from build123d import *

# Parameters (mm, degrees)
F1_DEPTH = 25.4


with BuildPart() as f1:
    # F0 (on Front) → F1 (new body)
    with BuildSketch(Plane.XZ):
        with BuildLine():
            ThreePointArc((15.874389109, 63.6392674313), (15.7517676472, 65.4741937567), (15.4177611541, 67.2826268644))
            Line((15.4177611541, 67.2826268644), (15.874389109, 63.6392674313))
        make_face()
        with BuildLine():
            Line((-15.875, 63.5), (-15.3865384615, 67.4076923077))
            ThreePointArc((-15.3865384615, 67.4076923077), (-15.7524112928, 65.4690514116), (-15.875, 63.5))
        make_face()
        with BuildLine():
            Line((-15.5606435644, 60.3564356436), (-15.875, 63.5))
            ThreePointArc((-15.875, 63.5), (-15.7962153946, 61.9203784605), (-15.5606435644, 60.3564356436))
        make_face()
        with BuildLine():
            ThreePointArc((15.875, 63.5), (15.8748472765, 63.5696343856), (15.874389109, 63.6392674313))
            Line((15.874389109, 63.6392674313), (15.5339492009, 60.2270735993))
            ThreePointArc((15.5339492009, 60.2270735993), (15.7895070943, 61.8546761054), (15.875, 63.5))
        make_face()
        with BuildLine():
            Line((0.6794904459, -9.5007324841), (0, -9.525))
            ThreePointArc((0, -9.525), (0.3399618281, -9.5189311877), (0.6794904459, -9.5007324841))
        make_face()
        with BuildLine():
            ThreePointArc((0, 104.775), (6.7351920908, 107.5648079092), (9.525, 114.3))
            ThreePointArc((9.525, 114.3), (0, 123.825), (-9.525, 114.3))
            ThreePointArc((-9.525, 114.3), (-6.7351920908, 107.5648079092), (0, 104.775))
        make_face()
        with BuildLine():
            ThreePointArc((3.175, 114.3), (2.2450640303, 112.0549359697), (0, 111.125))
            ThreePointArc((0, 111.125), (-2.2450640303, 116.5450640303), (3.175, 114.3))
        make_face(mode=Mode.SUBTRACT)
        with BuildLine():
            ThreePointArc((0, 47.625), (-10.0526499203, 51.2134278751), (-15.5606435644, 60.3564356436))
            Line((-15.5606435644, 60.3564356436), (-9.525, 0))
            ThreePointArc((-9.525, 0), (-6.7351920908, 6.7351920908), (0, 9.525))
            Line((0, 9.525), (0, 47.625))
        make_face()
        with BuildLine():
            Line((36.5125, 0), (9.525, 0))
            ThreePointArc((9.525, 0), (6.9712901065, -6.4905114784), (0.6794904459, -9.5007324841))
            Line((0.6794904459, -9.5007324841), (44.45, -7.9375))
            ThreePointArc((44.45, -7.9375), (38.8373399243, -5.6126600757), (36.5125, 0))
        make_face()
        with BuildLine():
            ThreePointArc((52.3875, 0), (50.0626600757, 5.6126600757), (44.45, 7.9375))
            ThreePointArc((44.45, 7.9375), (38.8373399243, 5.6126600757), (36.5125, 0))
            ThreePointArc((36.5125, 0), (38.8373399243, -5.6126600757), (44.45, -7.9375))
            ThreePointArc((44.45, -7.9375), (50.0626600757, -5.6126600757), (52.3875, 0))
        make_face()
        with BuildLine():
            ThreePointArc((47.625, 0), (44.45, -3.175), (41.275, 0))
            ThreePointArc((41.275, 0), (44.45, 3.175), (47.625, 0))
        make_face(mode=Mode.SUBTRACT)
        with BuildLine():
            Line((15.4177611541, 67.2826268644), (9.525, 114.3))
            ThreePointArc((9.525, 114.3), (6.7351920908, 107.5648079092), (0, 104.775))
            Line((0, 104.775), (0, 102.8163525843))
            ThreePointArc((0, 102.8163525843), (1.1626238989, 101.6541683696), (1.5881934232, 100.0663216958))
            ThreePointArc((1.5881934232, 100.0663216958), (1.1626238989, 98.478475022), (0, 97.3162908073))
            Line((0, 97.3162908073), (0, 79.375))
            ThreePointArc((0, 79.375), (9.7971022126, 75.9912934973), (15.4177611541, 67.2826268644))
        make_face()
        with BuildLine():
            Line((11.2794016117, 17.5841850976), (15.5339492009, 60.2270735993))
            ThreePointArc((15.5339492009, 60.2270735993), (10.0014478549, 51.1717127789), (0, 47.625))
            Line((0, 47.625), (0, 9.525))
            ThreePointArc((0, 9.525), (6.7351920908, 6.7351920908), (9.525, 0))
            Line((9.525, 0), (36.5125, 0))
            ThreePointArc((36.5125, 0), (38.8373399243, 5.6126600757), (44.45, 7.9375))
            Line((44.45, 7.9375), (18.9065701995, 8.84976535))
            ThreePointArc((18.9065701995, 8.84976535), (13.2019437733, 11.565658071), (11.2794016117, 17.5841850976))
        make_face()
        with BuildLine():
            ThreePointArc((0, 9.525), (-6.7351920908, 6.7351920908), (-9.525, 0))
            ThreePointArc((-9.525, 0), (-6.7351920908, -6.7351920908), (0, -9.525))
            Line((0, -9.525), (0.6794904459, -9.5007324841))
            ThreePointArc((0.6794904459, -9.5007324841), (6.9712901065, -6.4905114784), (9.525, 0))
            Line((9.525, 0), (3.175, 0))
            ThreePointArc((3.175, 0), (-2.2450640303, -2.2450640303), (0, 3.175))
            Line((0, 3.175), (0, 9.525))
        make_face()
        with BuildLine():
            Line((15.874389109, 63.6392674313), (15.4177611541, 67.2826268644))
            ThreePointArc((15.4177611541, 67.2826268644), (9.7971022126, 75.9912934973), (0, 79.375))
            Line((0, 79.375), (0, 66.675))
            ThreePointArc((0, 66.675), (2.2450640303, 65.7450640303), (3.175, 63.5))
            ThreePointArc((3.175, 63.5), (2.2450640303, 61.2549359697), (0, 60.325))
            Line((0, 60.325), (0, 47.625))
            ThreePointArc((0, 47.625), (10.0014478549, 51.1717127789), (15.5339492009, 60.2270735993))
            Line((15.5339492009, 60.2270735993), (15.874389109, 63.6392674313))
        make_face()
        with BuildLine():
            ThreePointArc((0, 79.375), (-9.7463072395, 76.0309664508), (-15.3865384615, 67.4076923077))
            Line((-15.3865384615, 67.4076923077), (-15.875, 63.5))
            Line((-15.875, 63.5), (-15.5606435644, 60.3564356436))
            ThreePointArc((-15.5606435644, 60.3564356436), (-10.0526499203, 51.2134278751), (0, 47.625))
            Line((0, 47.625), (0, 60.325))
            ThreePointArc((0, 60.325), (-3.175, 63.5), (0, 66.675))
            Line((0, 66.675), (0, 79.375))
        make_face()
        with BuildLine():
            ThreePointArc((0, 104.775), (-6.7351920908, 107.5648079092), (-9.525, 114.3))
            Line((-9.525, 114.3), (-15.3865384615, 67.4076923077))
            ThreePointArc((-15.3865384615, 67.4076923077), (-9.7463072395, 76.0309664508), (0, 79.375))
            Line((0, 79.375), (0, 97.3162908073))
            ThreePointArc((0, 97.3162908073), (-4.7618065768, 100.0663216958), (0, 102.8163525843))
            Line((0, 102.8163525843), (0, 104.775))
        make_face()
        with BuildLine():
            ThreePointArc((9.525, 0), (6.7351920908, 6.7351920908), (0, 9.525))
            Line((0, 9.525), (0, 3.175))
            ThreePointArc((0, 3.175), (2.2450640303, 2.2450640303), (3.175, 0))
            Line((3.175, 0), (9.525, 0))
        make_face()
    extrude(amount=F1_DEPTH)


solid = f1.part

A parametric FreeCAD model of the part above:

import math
import FreeCAD as App
import Part
import Sketcher
from FreeCAD import Vector
Q = App.Units.Quantity

doc = App.newDocument("Part")
body = doc.addObject("PartDesign::Body", "Body")

sketch1 = doc.addObject("Sketcher::SketchObject", "Sketch")
body.addObject(sketch1)
sketch1.AttachmentSupport = (doc.XZ_Plane, [""])
sketch1.MapMode = "FlatFace"
sketch1.addGeometry(Part.ArcOfCircle(Part.Circle(Vector(0, 63.5, 0), Vector(0, 0, 1), 15.88), math.radians(0.5), math.radians(13.78)), False)
sketch1.addGeometry(Part.LineSegment(Vector(15.42, 67.28, 0), Vector(9.53, 114.3, 0)), False)
sketch1.addGeometry(Part.ArcOfCircle(Part.Circle(Vector(0, 114.3, 0), Vector(0, 0, 1), 9.53), math.radians(0), math.radians(180)), False)
sketch1.addGeometry(Part.LineSegment(Vector(-9.53, 114.3, 0), Vector(-15.39, 67.41, 0)), False)
sketch1.addGeometry(Part.ArcOfCircle(Part.Circle(Vector(0, 63.5, 0), Vector(0, 0, 1), 15.88), math.radians(165.75), math.radians(180)), False)
sketch1.addGeometry(Part.ArcOfCircle(Part.Circle(Vector(0, 63.5, 0), Vector(0, 0, 1), 15.87), math.radians(180), math.radians(191.42)), False)
sketch1.addGeometry(Part.LineSegment(Vector(-15.56, 60.36, 0), Vector(-9.53, 0, 0)), False)
sketch1.addGeometry(Part.ArcOfCircle(Part.Circle(Vector(0, 0, 0), Vector(0, 0, 1), 9.53), math.radians(180), math.radians(270)), False)
sketch1.addGeometry(Part.ArcOfCircle(Part.Circle(Vector(0, 0, 0), Vector(0, 0, 1), 9.52), math.radians(-90), math.radians(-85.91)), False)
sketch1.addGeometry(Part.LineSegment(Vector(0.68, -9.5, 0), Vector(44.45, -7.94, 0)), False)
sketch1.addGeometry(Part.ArcOfCircle(Part.Circle(Vector(44.45, 0, 0), Vector(0, 0, 1), 7.94), math.radians(-90), math.radians(0)), False)
sketch1.addGeometry(Part.ArcOfCircle(Part.Circle(Vector(44.45, 0, 0), Vector(0, 0, 1), 7.94), math.radians(0), math.radians(90)), False)
sketch1.addGeometry(Part.LineSegment(Vector(44.45, 7.94, 0), Vector(18.91, 8.85, 0)), False)
sketch1.addGeometry(Part.ArcOfCircle(Part.Circle(Vector(19.19, 16.79, 0), Vector(0, 0, 1), 7.95), math.radians(174), math.radians(268)), False)
sketch1.addGeometry(Part.LineSegment(Vector(11.28, 17.58, 0), Vector(15.53, 60.23, 0)), False)
sketch1.addGeometry(Part.ArcOfCircle(Part.Circle(Vector(0, 63.5, 0), Vector(0, 0, 1), 15.88), math.radians(-11.9), math.radians(0)), False)
sketch1.addGeometry(Part.ArcOfCircle(Part.Circle(Vector(0, 63.5, 0), Vector(0, 0, 1), 15.88), math.radians(0), math.radians(0.5)), False)
sketch1.addGeometry(Part.ArcOfCircle(Part.Circle(Vector(-1.59, 100.07, 0), Vector(0, 0, 1), 3.17), math.radians(0), math.radians(60)), False)
sketch1.addGeometry(Part.ArcOfCircle(Part.Circle(Vector(-1.59, 100.07, 0), Vector(0, 0, 1), 3.17), math.radians(-60), math.radians(0)), False)
sketch1.addGeometry(Part.ArcOfCircle(Part.Circle(Vector(-1.59, 100.07, 0), Vector(0, 0, 1), 3.17), math.radians(60), math.radians(300)), False)
sketch1.addGeometry(Part.ArcOfCircle(Part.Circle(Vector(0, 63.5, 0), Vector(0, 0, 1), 3.17), math.radians(0), math.radians(90)), False)
sketch1.addGeometry(Part.ArcOfCircle(Part.Circle(Vector(0, 63.5, 0), Vector(0, 0, 1), 3.17), math.radians(-90), math.radians(0)), False)
sketch1.addGeometry(Part.ArcOfCircle(Part.Circle(Vector(0, 63.5, 0), Vector(0, 0, 1), 3.17), math.radians(90), math.radians(270)), False)
sketch1.addGeometry(Part.ArcOfCircle(Part.Circle(Vector(0, 114.3, 0), Vector(0, 0, 1), 3.17), math.radians(-90), math.radians(0)), False)
sketch1.addGeometry(Part.ArcOfCircle(Part.Circle(Vector(0, 114.3, 0), Vector(0, 0, 1), 3.17), math.radians(0), math.radians(270)), False)
sketch1.addGeometry(Part.Circle(Vector(44.45, 0, 0), Vector(0, 0, 1), 3.17), False)
sketch1.addGeometry(Part.ArcOfCircle(Part.Circle(Vector(0, 0, 0), Vector(0, 0, 1), 3.17), math.radians(90), math.radians(360)), False)
sketch1.addGeometry(Part.ArcOfCircle(Part.Circle(Vector(0, 0, 0), Vector(0, 0, 1), 3.17), math.radians(0), math.radians(90)), False)
sketch1.addConstraint(Sketcher.Constraint("Coincident", 0, 2, 1, 1))
sketch1.addConstraint(Sketcher.Constraint("Coincident", 1, 2, 2, 1))
sketch1.addConstraint(Sketcher.Constraint("Coincident", 2, 2, 3, 1))
sketch1.addConstraint(Sketcher.Constraint("Coincident", 3, 2, 4, 1))
sketch1.addConstraint(Sketcher.Constraint("Tangent", 4, 2, 5, 1))
sketch1.addConstraint(Sketcher.Constraint("Coincident", 5, 2, 6, 1))
sketch1.addConstraint(Sketcher.Constraint("Coincident", 6, 2, 7, 1))
sketch1.addConstraint(Sketcher.Constraint("Tangent", 7, 2, 8, 1))
sketch1.addConstraint(Sketcher.Constraint("Coincident", 8, 2, 9, 1))
sketch1.addConstraint(Sketcher.Constraint("Coincident", 9, 2, 10, 1))
sketch1.addConstraint(Sketcher.Constraint("Tangent", 10, 2, 11, 1))
sketch1.addConstraint(Sketcher.Constraint("Coincident", 11, 2, 12, 1))
sketch1.addConstraint(Sketcher.Constraint("Tangent", 12, 2, 13, 2))
sketch1.addConstraint(Sketcher.Constraint("Tangent", 13, 1, 14, 1))
sketch1.addConstraint(Sketcher.Constraint("Coincident", 14, 2, 15, 1))
sketch1.addConstraint(Sketcher.Constraint("Tangent", 15, 2, 16, 1))
sketch1.addConstraint(Sketcher.Constraint("Tangent", 16, 2, 0, 1))
sketch1.addConstraint(Sketcher.Constraint("Tangent", 17, 1, 18, 2))
sketch1.addConstraint(Sketcher.Constraint("Tangent", 18, 1, 19, 2))
sketch1.addConstraint(Sketcher.Constraint("Tangent", 19, 1, 17, 2))
sketch1.addConstraint(Sketcher.Constraint("Tangent", 20, 1, 21, 2))
sketch1.addConstraint(Sketcher.Constraint("Tangent", 21, 1, 22, 2))
sketch1.addConstraint(Sketcher.Constraint("Tangent", 22, 1, 20, 2))
sketch1.addConstraint(Sketcher.Constraint("Tangent", 23, 1, 24, 2))
sketch1.addConstraint(Sketcher.Constraint("Coincident", 24, 1, 23, 2))
sketch1.addConstraint(Sketcher.Constraint("Tangent", 26, 1, 27, 2))
sketch1.addConstraint(Sketcher.Constraint("Coincident", 27, 1, 26, 2))
sketch1.addConstraint(Sketcher.Constraint("Coincident", 7, 3, -1, 1))
sketch1.addConstraint(Sketcher.Constraint("Coincident", 26, 3, -1, 1))
sketch1.addConstraint(Sketcher.Constraint("Coincident", 4, 3, 0, 3))
sketch1.addConstraint(Sketcher.Constraint("Coincident", 15, 3, 0, 3))
sketch1.addConstraint(Sketcher.Constraint("Coincident", 20, 3, 0, 3))
sketch1.addConstraint(Sketcher.Constraint("Coincident", 23, 3, 2, 3))
sketch1.addConstraint(Sketcher.Constraint("Coincident", 25, 3, 10, 3))
sketch1.addConstraint(Sketcher.Constraint("Equal", 0, 4))
sketch1.addConstraint(Sketcher.Constraint("Equal", 4, 5))
sketch1.addConstraint(Sketcher.Constraint("Equal", 2, 7))
sketch1.addConstraint(Sketcher.Constraint("Equal", 7, 8))
sketch1.addConstraint(Sketcher.Constraint("Equal", 10, 11))
sketch1.addConstraint(Sketcher.Constraint("Equal", 19, 20))
sketch1.addConstraint(Sketcher.Constraint("Equal", 22, 23))
sketch1.addConstraint(Sketcher.Constraint("Equal", 24, 25))
sketch1.addConstraint(Sketcher.Constraint("Equal", 25, 26))
sketch1.addConstraint(Sketcher.Constraint("Symmetric", 1, 2, 2, 2, -2))
sketch1.addConstraint(Sketcher.Constraint("Symmetric", 4, 2, 15, 2, -2))
sketch1.addConstraint(Sketcher.Constraint("Symmetric", 9, 2, 11, 2, -1))
sketch1.addConstraint(Sketcher.Constraint("PointOnObject", 6, 2, -1))
sketch1.addConstraint(Sketcher.Constraint("PointOnObject", 7, 2, -2))
sketch1.addConstraint(Sketcher.Constraint("PointOnObject", 10, 2, -1))
sketch1.addConstraint(Sketcher.Constraint("PointOnObject", 18, 1, -2))
sketch1.addConstraint(Sketcher.Constraint("PointOnObject", 19, 1, -2))
sketch1.addConstraint(Sketcher.Constraint("PointOnObject", 21, 1, -2))
sketch1.addConstraint(Sketcher.Constraint("PointOnObject", 22, 1, -2))
sketch1.addConstraint(Sketcher.Constraint("PointOnObject", 23, 1, -2))
sketch1.addConstraint(Sketcher.Constraint("PointOnObject", 26, 1, -2))
sketch1.addConstraint(Sketcher.Constraint("PointOnObject", 27, 1, -1))
sketch1.addConstraint(Sketcher.Constraint("Horizontal", 24, 3, 1, 2))
sketch1.addConstraint(Sketcher.Constraint("Horizontal", 22, 3, 4, 2))
sketch1.addConstraint(Sketcher.Constraint("Horizontal", 19, 3, 17, 1))
sketch1.addConstraint(Sketcher.Constraint("Horizontal", 15, 2, 20, 1))
sketch1.addConstraint(Sketcher.Constraint("Horizontal", 2, 2, 24, 1))
sketch1.addConstraint(Sketcher.Constraint("Vertical", 25, 3, 9, 2))
sketch1.addConstraint(Sketcher.Constraint("Diameter", 25, Q("0.25 in")))
sketch1.addConstraint(Sketcher.Constraint("Radius", 0, Q("0.625 in")))
sketch1.addConstraint(Sketcher.Constraint("Radius", 2, Q("0.375 in")))
sketch1.addConstraint(Sketcher.Constraint("Radius", 10, Q("0.3125 in")))
sketch1.addConstraint(Sketcher.Constraint("Radius", 13, Q("0.313 in")))
sketch1.addConstraint(Sketcher.Constraint("DistanceY", 0, 3, 2, 3, Q("2 in")))
sketch1.addConstraint(Sketcher.Constraint("DistanceY", -1, 1, 0, 3, Q("2.5 in")))
sketch1.addConstraint(Sketcher.Constraint("DistanceX", -1, 1, 10, 3, Q("1.75 in")))
sketch1.addConstraint(Sketcher.Constraint("DistanceY", -1, 1, 13, 3, 16.7949))
sketch1.addConstraint(Sketcher.Constraint("DistanceX", -1, 1, 13, 1, 11.279402))
sketch1.addConstraint(Sketcher.Constraint("Distance", 1, 47.385209))
sketch1.addConstraint(Sketcher.Constraint("DistanceY", -1, 1, 17, 3, 100.066322))
sketch1.addConstraint(Sketcher.Constraint("DistanceX", 3, 2, -1, 1, 15.386538))
sketch1.addConstraint(Sketcher.Constraint("DistanceX", -1, 1, 8, 2, 0.67949))
sketch1.addConstraint(Sketcher.Constraint("DistanceX", -1, 1, 14, 2, 15.533949))
sketch1.addConstraint(Sketcher.Constraint("DistanceX", -1, 1, 16, 2, 15.874389))
sketch1.addConstraint(Sketcher.Constraint("DistanceY", -1, 1, 18, 1, 97.316291))
sketch1.addConstraint(Sketcher.Constraint("DistanceX", 5, 2, 16, 3, 15.560641))
pad1 = doc.addObject("PartDesign::Pad", "Pad")
body.addObject(pad1)
pad1.Profile = sketch1
pad1.Length = Q("1 in")

doc.recompute()
